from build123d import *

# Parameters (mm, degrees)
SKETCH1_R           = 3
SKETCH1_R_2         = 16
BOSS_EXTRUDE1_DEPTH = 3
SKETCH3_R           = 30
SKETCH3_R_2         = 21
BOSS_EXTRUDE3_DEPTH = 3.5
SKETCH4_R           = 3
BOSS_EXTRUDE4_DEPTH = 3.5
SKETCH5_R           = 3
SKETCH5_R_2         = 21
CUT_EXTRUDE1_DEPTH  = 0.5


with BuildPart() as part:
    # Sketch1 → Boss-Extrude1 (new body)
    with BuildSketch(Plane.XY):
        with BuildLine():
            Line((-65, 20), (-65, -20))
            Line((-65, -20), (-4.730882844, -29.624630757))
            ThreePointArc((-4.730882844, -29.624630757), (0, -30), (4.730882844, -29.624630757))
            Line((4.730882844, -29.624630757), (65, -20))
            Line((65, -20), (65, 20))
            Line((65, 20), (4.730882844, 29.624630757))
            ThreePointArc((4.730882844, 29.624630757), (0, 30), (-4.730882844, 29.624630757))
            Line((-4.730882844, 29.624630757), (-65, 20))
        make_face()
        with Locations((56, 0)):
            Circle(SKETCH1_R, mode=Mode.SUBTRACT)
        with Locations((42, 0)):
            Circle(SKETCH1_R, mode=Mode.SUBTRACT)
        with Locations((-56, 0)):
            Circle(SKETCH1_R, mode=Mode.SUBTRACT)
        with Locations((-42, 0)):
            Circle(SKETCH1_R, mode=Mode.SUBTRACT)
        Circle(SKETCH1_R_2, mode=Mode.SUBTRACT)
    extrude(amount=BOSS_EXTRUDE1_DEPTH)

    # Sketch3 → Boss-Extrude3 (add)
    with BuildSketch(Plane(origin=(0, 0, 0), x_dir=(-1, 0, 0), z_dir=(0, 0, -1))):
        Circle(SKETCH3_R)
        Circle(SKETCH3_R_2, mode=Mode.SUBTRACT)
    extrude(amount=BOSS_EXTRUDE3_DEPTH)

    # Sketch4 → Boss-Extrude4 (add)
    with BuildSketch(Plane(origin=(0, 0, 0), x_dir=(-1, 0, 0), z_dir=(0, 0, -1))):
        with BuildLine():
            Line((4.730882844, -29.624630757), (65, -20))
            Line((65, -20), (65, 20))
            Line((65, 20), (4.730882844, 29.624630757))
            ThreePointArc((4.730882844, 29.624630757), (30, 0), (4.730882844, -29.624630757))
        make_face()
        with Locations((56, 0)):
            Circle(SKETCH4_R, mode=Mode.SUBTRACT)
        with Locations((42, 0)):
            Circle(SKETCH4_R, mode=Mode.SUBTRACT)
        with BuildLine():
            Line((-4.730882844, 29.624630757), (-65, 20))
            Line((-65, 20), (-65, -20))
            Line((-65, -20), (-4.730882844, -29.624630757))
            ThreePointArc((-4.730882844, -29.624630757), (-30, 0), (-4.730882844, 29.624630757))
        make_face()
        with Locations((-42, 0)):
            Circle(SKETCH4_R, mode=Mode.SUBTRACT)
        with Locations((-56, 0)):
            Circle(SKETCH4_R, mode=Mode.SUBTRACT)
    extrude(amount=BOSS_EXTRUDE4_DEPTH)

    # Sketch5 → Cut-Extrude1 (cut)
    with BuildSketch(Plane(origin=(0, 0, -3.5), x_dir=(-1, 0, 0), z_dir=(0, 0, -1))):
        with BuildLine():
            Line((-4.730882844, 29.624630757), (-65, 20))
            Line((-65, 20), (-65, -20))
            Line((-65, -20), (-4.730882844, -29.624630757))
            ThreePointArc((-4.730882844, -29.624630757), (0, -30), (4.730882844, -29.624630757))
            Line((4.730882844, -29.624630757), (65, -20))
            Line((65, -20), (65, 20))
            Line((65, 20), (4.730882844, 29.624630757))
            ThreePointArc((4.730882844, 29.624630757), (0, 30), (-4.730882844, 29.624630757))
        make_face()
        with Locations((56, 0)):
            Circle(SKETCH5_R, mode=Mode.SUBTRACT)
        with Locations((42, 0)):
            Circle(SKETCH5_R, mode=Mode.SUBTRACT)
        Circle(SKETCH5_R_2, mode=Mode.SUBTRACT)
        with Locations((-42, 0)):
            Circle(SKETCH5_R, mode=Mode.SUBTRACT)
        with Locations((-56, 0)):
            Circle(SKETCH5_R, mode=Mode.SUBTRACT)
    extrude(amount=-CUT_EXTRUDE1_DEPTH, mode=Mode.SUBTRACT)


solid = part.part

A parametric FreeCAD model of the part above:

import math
import FreeCAD as App
import Part
import Sketcher

doc = App.newDocument("Part")
params = doc.addObject("Spreadsheet::Sheet", "Params")
for row, (alias, value) in enumerate([
    ("sketch1_diameter", "6 mm"),
    ("sketch1_diameter2", "32 mm"),
    ("sketch1_radius", "30 mm"),
    ("sketch1_height", "40 mm"),
    ("pad1_length", "3 mm"),
    ("sketch2_diameter", "60 mm"),
    ("sketch2_diameter2", "42 mm"),
    ("pad2_length", "3.5 mm"),
    ("sketch3_diameter", "6 mm"),
    ("sketch3_radius", "30 mm"),
    ("sketch3_height", "40 mm"),
    ("pad3_length", "3.5 mm"),
    ("sketch4_diameter", "6 mm"),
    ("sketch4_diameter2", "42 mm"),
    ("sketch4_radius", "30 mm"),
    ("sketch4_height", "40 mm"),
    ("pocket1_length", "0.5 mm"),
], start=1):
    params.set(f"A{row}", alias)
    params.set(f"B{row}", "=" + value)
    params.setAlias(f"B{row}", alias)

body = doc.addObject("PartDesign::Body", "Body")

sketch1 = body.newObject("Sketcher::SketchObject", "Sketch")
sketch1.AttachmentSupport = (doc.getObject("XY_Plane"), [""])
sketch1.MapMode = "FlatFace"
sketch1.addGeometry(Part.LineSegment(App.Vector(-65, 20, 0), App.Vector(-65, -20, 0)), False)
sketch1.addGeometry(Part.LineSegment(App.Vector(-65, -20, 0), App.Vector(-4.7, -29.6, 0)), False)
sketch1.addGeometry(Part.ArcOfCircle(Part.Circle(App.Vector(0, 0, 0), App.Vector(0, 0, 1), 30), math.radians(-99.07), math.radians(-80.93)), False)
sketch1.addGeometry(Part.LineSegment(App.Vector(4.7, -29.6, 0), App.Vector(65, -20, 0)), False)
sketch1.addGeometry(Part.LineSegment(App.Vector(65, -20, 0), App.Vector(65, 20, 0)), False)
sketch1.addGeometry(Part.LineSegment(App.Vector(65, 20, 0), App.Vector(4.7, 29.6, 0)), False)
sketch1.addGeometry(Part.ArcOfCircle(Part.Circle(App.Vector(0, 0, 0), App.Vector(0, 0, 1), 30), math.radians(80.93), math.radians(99.07)), False)
sketch1.addGeometry(Part.LineSegment(App.Vector(-4.7, 29.6, 0), App.Vector(-65, 20, 0)), False)
sketch1.addGeometry(Part.Circle(App.Vector(-56, 0, 0), App.Vector(0, 0, 1), 3), False)
sketch1.addGeometry(Part.Circle(App.Vector(-42, 0, 0), App.Vector(0, 0, 1), 3), False)
sketch1.addGeometry(Part.Circle(App.Vector(0, 0, 0), App.Vector(0, 0, 1), 16), False)
sketch1.addGeometry(Part.Circle(App.Vector(42, 0, 0), App.Vector(0, 0, 1), 3), False)
sketch1.addGeometry(Part.Circle(App.Vector(56, 0, 0), App.Vector(0, 0, 1), 3), False)
sketch1.addConstraint(Sketcher.Constraint("Coincident", 0, 2, 1, 1))
sketch1.addConstraint(Sketcher.Constraint("Tangent", 1, 2, 2, 1))
sketch1.addConstraint(Sketcher.Constraint("Tangent", 2, 2, 3, 1))
sketch1.addConstraint(Sketcher.Constraint("Coincident", 3, 2, 4, 1))
sketch1.addConstraint(Sketcher.Constraint("Coincident", 4, 2, 5, 1))
sketch1.addConstraint(Sketcher.Constraint("Tangent", 5, 2, 6, 1))
sketch1.addConstraint(Sketcher.Constraint("Tangent", 6, 2, 7, 1))
sketch1.addConstraint(Sketcher.Constraint("Coincident", 7, 2, 0, 1))
sketch1.addConstraint(Sketcher.Constraint("Vertical", 0))
sketch1.addConstraint(Sketcher.Constraint("Vertical", 4))
sketch1.addConstraint(Sketcher.Constraint("Coincident", 2, 3, -1, 1))
sketch1.addConstraint(Sketcher.Constraint("Coincident", 6, 3, -1, 1))
sketch1.addConstraint(Sketcher.Constraint("Coincident", 10, 3, -1, 1))
sketch1.addConstraint(Sketcher.Constraint("Equal", 2, 6))
sketch1.addConstraint(Sketcher.Constraint("Equal", 8, 9))
sketch1.addConstraint(Sketcher.Constraint("Equal", 9, 11))
sketch1.addConstraint(Sketcher.Constraint("Equal", 11, 12))
sketch1.addConstraint(Sketcher.Constraint("Symmetric", 9, 3, 11, 3, -1, 1))
sketch1.addConstraint(Sketcher.Constraint("Symmetric", 8, 3, 12, 3, -1, 1))
sketch1.addConstraint(Sketcher.Constraint("Symmetric", 0, 2, 4, 2, -1, 1))
sketch1.addConstraint(Sketcher.Constraint("PointOnObject", 8, 3, -1))
sketch1.addConstraint(Sketcher.Constraint("PointOnObject", 9, 3, -1))
sketch1.addConstraint(Sketcher.Constraint("Parallel", 3, 7))
sketch1.addConstraint(Sketcher.Constraint("Horizontal", 1, 2, 2, 2))
sketch1.addConstraint(Sketcher.Constraint("Diameter", 8, 6.0))
sketch1.addConstraint(Sketcher.Constraint("Diameter", 10, 32.0))
sketch1.addConstraint(Sketcher.Constraint("Radius", 2, 30.0))
sketch1.addConstraint(Sketcher.Constraint("DistanceY", 0, 2, 0, 1, 40.0))
sketch1.addConstraint(Sketcher.Constraint("DistanceX", 8, 3, -1, 1, 56.0))
sketch1.addConstraint(Sketcher.Constraint("DistanceX", 9, 3, -1, 1, 42.0))
sketch1.addConstraint(Sketcher.Constraint("DistanceX", 0, 2, -1, 1, 65.0))
sketch1.setExpression("Constraints[24]", "Params.sketch1_diameter")
sketch1.setExpression("Constraints[25]", "Params.sketch1_diameter2")
sketch1.setExpression("Constraints[26]", "Params.sketch1_radius")
sketch1.setExpression("Constraints[27]", "Params.sketch1_height")
pad1 = body.newObject("PartDesign::Pad", "Pad")
pad1.Profile = sketch1
pad1.setExpression("Length", "Params.pad1_length")

sketch2 = body.newObject("Sketcher::SketchObject", "Sketch001")
sketch2.AttachmentSupport = (doc.getObject("XY_Plane"), [""])
sketch2.MapMode = "FlatFace"
sketch2.addGeometry(Part.Circle(App.Vector(0, 0, 0), App.Vector(0, 0, 1), 30), False)
sketch2.addGeometry(Part.Circle(App.Vector(0, 0, 0), App.Vector(0, 0, 1), 21), False)
sketch2.addConstraint(Sketcher.Constraint("Coincident", 0, 3, -1, 1))
sketch2.addConstraint(Sketcher.Constraint("Coincident", 1, 3, -1, 1))
sketch2.addConstraint(Sketcher.Constraint("Diameter", 0, 60.0))
sketch2.addConstraint(Sketcher.Constraint("Diameter", 1, 42.0))
sketch2.setExpression("Constraints[2]", "Params.sketch2_diameter")
sketch2.setExpression("Constraints[3]", "Params.sketch2_diameter2")
pad2 = body.newObject("PartDesign::Pad", "Pad001")
pad2.Profile = sketch2
pad2.setExpression("Length", "Params.pad2_length")
pad2.Reversed = True

sketch3 = body.newObject("Sketcher::SketchObject", "Sketch002")
sketch3.AttachmentSupport = (doc.getObject("XY_Plane"), [""])
sketch3.MapMode = "FlatFace"
sketch3.addGeometry(Part.LineSegment(App.Vector(-4.7, -29.6, 0), App.Vector(-65, -20, 0)), False)
sketch3.addGeometry(Part.LineSegment(App.Vector(-65, -20, 0), App.Vector(-65, 20, 0)), False)
sketch3.addGeometry(Part.LineSegment(App.Vector(-65, 20, 0), App.Vector(-4.7, 29.6, 0)), False)
sketch3.addGeometry(Part.ArcOfCircle(Part.Circle(App.Vector(0, 0, 0), App.Vector(0, 0, 1), 30), math.radians(99), math.radians(261)), False)
sketch3.addGeometry(Part.Circle(App.Vector(-42, 0, 0), App.Vector(0, 0, 1), 3), False)
sketch3.addGeometry(Part.Circle(App.Vector(-56, 0, 0), App.Vector(0, 0, 1), 3), False)
sketch3.addGeometry(Part.LineSegment(App.Vector(4.7, 29.6, 0), App.Vector(65, 20, 0)), False)
sketch3.addGeometry(Part.LineSegment(App.Vector(65, 20, 0), App.Vector(65, -20, 0)), False)
sketch3.addGeometry(Part.LineSegment(App.Vector(65, -20, 0), App.Vector(4.7, -29.6, 0)), False)
sketch3.addGeometry(Part.ArcOfCircle(Part.Circle(App.Vector(0, 0, 0), App.Vector(0, 0, 1), 30), math.radians(-81), math.radians(81)), False)
sketch3.addGeometry(Part.Circle(App.Vector(56, 0, 0), App.Vector(0, 0, 1), 3), False)
sketch3.addGeometry(Part.Circle(App.Vector(42, 0, 0), App.Vector(0, 0, 1), 3), False)
sketch3.addConstraint(Sketcher.Constraint("Coincident", 0, 2, 1, 1))
sketch3.addConstraint(Sketcher.Constraint("Coincident", 1, 2, 2, 1))
sketch3.addConstraint(Sketcher.Constraint("Tangent", 2, 2, 3, 1))
sketch3.addConstraint(Sketcher.Constraint("Tangent", 3, 2, 0, 1))
sketch3.addConstraint(Sketcher.Constraint("Coincident", 6, 2, 7, 1))
sketch3.addConstraint(Sketcher.Constraint("Coincident", 7, 2, 8, 1))
sketch3.addConstraint(Sketcher.Constraint("Tangent", 8, 2, 9, 1))
sketch3.addConstraint(Sketcher.Constraint("Tangent", 9, 2, 6, 1))
sketch3.addConstraint(Sketcher.Constraint("Vertical", 1))
sketch3.addConstraint(Sketcher.Constraint("Vertical", 7))
sketch3.addConstraint(Sketcher.Constraint("Coincident", 3, 3, -1, 1))
sketch3.addConstraint(Sketcher.Constraint("Coincident", 9, 3, -1, 1))
sketch3.addConstraint(Sketcher.Constraint("Equal", 4, 5))
sketch3.addConstraint(Sketcher.Constraint("Equal", 3, 9))
sketch3.addConstraint(Sketcher.Constraint("Equal", 5, 10))
sketch3.addConstraint(Sketcher.Constraint("Equal", 10, 11))
sketch3.addConstraint(Sketcher.Constraint("Symmetric", 5, 3, 10, 3, -1, 1))
sketch3.addConstraint(Sketcher.Constraint("Symmetric", 4, 3, 11, 3, -1, 1))
sketch3.addConstraint(Sketcher.Constraint("Symmetric", 0, 2, 6, 2, -1, 1))
sketch3.addConstraint(Sketcher.Constraint("PointOnObject", 4, 3, -1))
sketch3.addConstraint(Sketcher.Constraint("PointOnObject", 5, 3, -1))
sketch3.addConstraint(Sketcher.Constraint("Parallel", 2, 8))
sketch3.addConstraint(Sketcher.Constraint("Horizontal", 1, 2, 6, 2))
sketch3.addConstraint(Sketcher.Constraint("Diameter", 4, 6.0))
sketch3.addConstraint(Sketcher.Constraint("Radius", 3, 30.0))
sketch3.addConstraint(Sketcher.Constraint("DistanceY", 1, 1, 1, 2, 40.0))
sketch3.addConstraint(Sketcher.Constraint("DistanceX", 4, 3, -1, 1, 42.0))
sketch3.addConstraint(Sketcher.Constraint("DistanceX", 5, 3, -1, 1, 56.0))
sketch3.addConstraint(Sketcher.Constraint("DistanceX", 0, 2, -1, 1, 65.0))
sketch3.setExpression("Constraints[23]", "Params.sketch3_diameter")
sketch3.setExpression("Constraints[24]", "Params.sketch3_radius")
sketch3.setExpression("Constraints[25]", "Params.sketch3_height")
pad3 = body.newObject("PartDesign::Pad", "Pad002")
pad3.Profile = sketch3
pad3.setExpression("Length", "Params.pad3_length")
pad3.Reversed = True

sketch4 = body.newObject("Sketcher::SketchObject", "Sketch003")
sketch4.AttachmentSupport = (doc.getObject("XY_Plane"), [""])
sketch4.MapMode = "FlatFace"
sketch4.AttachmentOffset = App.Placement(App.Vector(0, 0, -3.5), App.Rotation())
sketch4.addGeometry(Part.LineSegment(App.Vector(4.7, 29.6, 0), App.Vector(65, 20, 0)), False)
sketch4.addGeometry(Part.LineSegment(App.Vector(65, 20, 0), App.Vector(65, -20, 0)), False)
sketch4.addGeometry(Part.LineSegment(App.Vector(65, -20, 0), App.Vector(4.7, -29.6, 0)), False)
sketch4.addGeometry(Part.ArcOfCircle(Part.Circle(App.Vector(0, 0, 0), App.Vector(0, 0, 1), 30), math.radians(-99.07), math.radians(-80.93)), False)
sketch4.addGeometry(Part.LineSegment(App.Vector(-4.7, -29.6, 0), App.Vector(-65, -20, 0)), False)
sketch4.addGeometry(Part.LineSegment(App.Vector(-65, -20, 0), App.Vector(-65, 20, 0)), False)
sketch4.addGeometry(Part.LineSegment(App.Vector(-65, 20, 0), App.Vector(-4.7, 29.6, 0)), False)
sketch4.addGeometry(Part.ArcOfCircle(Part.Circle(App.Vector(0, 0, 0), App.Vector(0, 0, 1), 30), math.radians(80.93), math.radians(99.07)), False)
sketch4.addGeometry(Part.Circle(App.Vector(56, 0, 0), App.Vector(0, 0, 1), 3), False)
sketch4.addGeometry(Part.Circle(App.Vector(42, 0, 0), App.Vector(0, 0, 1), 3), False)
sketch4.addGeometry(Part.Circle(App.Vector(0, 0, 0), App.Vector(0, 0, 1), 21), False)
sketch4.addGeometry(Part.Circle(App.Vector(-42, 0, 0), App.Vector(0, 0, 1), 3), False)
sketch4.addGeometry(Part.Circle(App.Vector(-56, 0, 0), App.Vector(0, 0, 1), 3), False)
sketch4.addConstraint(Sketcher.Constraint("Coincident", 0, 2, 1, 1))
sketch4.addConstraint(Sketcher.Constraint("Coincident", 1, 2, 2, 1))
sketch4.addConstraint(Sketcher.Constraint("Tangent", 2, 2, 3, 2))
sketch4.addConstraint(Sketcher.Constraint("Tangent", 3, 1, 4, 1))
sketch4.addConstraint(Sketcher.Constraint("Coincident", 4, 2, 5, 1))
sketch4.addConstraint(Sketcher.Constraint("Coincident", 5, 2, 6, 1))
sketch4.addConstraint(Sketcher.Constraint("Tangent", 6, 2, 7, 2))
sketch4.addConstraint(Sketcher.Constraint("Tangent", 7, 1, 0, 1))
sketch4.addConstraint(Sketcher.Constraint("Vertical", 1))
sketch4.addConstraint(Sketcher.Constraint("Vertical", 5))
sketch4.addConstraint(Sketcher.Constraint("Coincident", 3, 3, -1, 1))
sketch4.addConstraint(Sketcher.Constraint("Coincident", 7, 3, -1, 1))
sketch4.addConstraint(Sketcher.Constraint("Coincident", 10, 3, -1, 1))
sketch4.addConstraint(Sketcher.Constraint("Equal", 3, 7))
sketch4.addConstraint(Sketcher.Constraint("Equal", 8, 9))
sketch4.addConstraint(Sketcher.Constraint("Equal", 9, 11))
sketch4.addConstraint(Sketcher.Constraint("Equal", 11, 12))
sketch4.addConstraint(Sketcher.Constraint("Symmetric", 9, 3, 11, 3, -1, 1))
sketch4.addConstraint(Sketcher.Constraint("Symmetric", 8, 3, 12, 3, -1, 1))
sketch4.addConstraint(Sketcher.Constraint("Symmetric", 0, 2, 4, 2, -1, 1))
sketch4.addConstraint(Sketcher.Constraint("PointOnObject", 8, 3, -1))
sketch4.addConstraint(Sketcher.Constraint("PointOnObject", 9, 3, -1))
sketch4.addConstraint(Sketcher.Constraint("Parallel", 2, 6))
sketch4.addConstraint(Sketcher.Constraint("Horizontal", 2, 2, 3, 1))
sketch4.addConstraint(Sketcher.Constraint("Diameter", 8, 6.0))
sketch4.addConstraint(Sketcher.Constraint("Diameter", 10, 42.0))
sketch4.addConstraint(Sketcher.Constraint("Radius", 3, 30.0))
sketch4.addConstraint(Sketcher.Constraint("DistanceY", 1, 2, 1, 1, 40.0))
sketch4.addConstraint(Sketcher.Constraint("DistanceX", -1, 1, 8, 3, 56.0))
sketch4.addConstraint(Sketcher.Constraint("DistanceX", -1, 1, 9, 3, 42.0))
sketch4.addConstraint(Sketcher.Constraint("DistanceX", -1, 1, 0, 2, 65.0))
sketch4.setExpression("Constraints[24]", "Params.sketch4_diameter")
sketch4.setExpression("Constraints[25]", "Params.sketch4_diameter2")
sketch4.setExpression("Constraints[26]", "Params.sketch4_radius")
sketch4.setExpression("Constraints[27]", "Params.sketch4_height")
pocket1 = body.newObject("PartDesign::Pocket", "Pocket")
pocket1.Profile = sketch4
pocket1.setExpression("Length", "Params.pocket1_length")
pocket1.Reversed = True

doc.recompute()
